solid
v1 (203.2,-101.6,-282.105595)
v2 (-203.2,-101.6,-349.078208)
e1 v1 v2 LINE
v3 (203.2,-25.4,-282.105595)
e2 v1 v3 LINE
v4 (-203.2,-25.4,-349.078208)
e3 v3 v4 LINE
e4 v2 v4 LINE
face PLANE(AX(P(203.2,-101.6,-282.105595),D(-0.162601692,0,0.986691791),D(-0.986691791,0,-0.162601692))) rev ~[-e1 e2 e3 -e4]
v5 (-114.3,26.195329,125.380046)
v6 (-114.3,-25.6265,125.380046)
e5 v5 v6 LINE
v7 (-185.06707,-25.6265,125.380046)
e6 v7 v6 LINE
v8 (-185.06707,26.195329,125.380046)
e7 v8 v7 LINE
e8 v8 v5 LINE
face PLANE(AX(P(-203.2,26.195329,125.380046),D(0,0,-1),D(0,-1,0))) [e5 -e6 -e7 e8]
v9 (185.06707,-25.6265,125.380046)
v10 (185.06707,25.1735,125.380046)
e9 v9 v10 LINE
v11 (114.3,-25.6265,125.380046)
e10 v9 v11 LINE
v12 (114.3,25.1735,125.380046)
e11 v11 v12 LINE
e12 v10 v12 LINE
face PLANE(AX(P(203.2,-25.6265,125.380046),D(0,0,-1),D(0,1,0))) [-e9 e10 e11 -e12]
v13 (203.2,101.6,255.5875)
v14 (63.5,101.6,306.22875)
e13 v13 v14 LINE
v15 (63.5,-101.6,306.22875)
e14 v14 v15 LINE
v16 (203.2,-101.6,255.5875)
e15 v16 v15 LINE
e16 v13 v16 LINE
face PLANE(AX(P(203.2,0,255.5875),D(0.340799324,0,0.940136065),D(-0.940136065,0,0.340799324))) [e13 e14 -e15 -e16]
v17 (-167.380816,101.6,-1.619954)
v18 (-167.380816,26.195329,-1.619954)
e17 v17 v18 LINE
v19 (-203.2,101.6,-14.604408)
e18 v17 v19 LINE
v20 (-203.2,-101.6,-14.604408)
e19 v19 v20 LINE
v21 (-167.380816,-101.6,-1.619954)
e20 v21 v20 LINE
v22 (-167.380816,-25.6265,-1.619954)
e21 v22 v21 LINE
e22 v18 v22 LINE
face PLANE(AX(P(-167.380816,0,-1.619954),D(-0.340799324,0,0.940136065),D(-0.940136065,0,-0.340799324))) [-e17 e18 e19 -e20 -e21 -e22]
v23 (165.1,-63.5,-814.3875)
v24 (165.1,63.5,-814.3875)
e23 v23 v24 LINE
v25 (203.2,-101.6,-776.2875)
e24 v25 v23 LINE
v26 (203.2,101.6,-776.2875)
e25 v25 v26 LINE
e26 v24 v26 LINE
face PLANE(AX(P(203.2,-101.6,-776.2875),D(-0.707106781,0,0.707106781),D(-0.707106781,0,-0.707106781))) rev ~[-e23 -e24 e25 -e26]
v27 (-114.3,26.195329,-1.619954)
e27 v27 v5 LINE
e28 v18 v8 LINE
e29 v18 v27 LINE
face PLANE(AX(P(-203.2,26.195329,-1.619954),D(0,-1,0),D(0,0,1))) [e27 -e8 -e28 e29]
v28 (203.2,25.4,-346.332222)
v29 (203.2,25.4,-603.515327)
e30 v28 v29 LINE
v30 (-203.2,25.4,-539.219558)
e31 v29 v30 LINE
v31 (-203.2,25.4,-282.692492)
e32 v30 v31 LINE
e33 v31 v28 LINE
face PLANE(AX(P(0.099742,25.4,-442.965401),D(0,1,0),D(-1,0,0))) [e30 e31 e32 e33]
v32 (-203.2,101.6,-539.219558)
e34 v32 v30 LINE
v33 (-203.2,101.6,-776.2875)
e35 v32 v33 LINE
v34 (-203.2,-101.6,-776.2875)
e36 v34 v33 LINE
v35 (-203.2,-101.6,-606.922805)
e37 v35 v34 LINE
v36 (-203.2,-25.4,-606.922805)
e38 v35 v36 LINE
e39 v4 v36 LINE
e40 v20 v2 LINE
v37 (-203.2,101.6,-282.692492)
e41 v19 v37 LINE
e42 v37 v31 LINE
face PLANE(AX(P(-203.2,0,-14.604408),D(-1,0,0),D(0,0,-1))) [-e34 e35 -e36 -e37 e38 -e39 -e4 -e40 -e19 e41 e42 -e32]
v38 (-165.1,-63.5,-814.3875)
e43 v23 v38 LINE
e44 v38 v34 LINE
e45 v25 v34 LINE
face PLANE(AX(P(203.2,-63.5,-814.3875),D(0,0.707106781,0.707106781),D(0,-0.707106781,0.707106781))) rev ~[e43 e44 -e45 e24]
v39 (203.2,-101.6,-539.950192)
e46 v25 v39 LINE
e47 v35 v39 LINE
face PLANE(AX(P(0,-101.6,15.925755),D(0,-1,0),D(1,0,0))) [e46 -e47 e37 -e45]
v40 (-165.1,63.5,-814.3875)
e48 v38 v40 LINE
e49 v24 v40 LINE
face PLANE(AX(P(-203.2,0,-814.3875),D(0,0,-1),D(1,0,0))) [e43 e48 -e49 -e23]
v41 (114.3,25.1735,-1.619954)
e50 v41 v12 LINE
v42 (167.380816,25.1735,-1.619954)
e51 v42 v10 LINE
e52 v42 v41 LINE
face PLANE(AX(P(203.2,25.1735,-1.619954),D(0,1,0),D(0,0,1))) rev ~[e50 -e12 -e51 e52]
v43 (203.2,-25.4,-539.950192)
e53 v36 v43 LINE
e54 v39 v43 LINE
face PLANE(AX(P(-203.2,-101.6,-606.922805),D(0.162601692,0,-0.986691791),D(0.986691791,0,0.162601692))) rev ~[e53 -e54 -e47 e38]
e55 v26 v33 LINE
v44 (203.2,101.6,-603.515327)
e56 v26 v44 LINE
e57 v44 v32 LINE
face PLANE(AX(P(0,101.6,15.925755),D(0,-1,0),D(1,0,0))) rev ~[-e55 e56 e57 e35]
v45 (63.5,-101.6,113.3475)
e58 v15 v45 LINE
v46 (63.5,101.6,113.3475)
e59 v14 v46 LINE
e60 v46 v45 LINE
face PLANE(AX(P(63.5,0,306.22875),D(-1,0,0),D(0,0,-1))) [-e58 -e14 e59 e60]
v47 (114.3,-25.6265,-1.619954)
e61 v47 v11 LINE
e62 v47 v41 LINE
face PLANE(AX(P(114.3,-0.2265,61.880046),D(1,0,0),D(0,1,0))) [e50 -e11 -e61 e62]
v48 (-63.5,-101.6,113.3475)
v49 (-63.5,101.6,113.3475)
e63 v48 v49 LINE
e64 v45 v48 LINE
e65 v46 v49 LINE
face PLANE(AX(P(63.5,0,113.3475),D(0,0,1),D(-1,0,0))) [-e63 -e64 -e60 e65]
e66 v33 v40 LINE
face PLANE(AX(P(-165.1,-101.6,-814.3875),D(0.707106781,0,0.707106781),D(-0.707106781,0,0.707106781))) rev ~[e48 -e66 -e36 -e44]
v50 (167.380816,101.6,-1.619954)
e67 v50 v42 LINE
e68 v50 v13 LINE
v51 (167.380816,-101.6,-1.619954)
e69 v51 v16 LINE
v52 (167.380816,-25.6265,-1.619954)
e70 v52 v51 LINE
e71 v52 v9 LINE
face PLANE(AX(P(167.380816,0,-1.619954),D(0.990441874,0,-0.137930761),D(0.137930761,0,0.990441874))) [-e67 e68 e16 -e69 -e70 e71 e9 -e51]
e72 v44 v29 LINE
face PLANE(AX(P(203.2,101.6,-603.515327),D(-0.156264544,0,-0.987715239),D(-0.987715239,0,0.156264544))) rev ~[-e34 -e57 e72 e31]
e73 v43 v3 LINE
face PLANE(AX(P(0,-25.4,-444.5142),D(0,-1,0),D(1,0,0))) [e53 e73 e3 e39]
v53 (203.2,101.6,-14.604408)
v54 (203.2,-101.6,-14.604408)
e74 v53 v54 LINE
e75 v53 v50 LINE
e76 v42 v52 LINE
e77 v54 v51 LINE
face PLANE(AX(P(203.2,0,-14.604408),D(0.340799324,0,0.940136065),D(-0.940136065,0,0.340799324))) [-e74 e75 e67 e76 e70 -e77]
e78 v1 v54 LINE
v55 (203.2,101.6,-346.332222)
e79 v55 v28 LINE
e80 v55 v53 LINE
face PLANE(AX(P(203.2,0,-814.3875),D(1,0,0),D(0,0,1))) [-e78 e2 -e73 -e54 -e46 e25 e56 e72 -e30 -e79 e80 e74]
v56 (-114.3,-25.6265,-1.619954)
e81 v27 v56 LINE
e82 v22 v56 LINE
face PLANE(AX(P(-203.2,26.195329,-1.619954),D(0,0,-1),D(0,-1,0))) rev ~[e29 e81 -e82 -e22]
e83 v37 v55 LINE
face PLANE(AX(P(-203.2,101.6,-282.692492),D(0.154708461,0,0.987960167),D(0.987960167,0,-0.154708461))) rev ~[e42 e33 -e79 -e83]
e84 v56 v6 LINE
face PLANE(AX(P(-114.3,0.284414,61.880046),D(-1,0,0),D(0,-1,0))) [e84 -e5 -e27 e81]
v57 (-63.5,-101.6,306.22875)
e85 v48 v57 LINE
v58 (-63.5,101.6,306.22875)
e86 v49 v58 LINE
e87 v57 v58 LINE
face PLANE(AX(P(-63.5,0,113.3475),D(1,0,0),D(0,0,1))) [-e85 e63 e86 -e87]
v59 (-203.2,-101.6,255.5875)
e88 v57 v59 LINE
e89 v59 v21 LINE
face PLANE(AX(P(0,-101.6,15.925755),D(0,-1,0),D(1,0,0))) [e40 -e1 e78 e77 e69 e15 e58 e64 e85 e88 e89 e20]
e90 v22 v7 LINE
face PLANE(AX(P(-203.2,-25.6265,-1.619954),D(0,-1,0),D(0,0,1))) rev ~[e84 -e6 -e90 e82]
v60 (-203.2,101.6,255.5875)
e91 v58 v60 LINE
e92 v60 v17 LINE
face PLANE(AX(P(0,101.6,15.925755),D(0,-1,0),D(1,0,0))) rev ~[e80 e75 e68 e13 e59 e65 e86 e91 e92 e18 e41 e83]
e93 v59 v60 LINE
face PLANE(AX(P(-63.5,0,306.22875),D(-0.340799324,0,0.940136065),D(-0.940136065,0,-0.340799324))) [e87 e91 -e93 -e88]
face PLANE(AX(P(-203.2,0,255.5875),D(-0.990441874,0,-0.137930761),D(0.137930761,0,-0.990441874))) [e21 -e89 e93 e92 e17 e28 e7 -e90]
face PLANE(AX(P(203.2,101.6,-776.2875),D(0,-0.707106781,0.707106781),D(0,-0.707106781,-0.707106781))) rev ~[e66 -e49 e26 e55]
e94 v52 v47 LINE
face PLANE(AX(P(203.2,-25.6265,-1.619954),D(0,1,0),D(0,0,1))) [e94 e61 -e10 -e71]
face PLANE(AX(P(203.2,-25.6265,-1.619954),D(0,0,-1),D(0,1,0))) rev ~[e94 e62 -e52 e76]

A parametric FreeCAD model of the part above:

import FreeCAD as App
import Part
import Sketcher
from FreeCAD import Vector
Q = App.Units.Quantity

doc = App.newDocument("Part")
body = doc.addObject("PartDesign::Body", "Body")

sketch1 = body.newObject("Sketcher::SketchObject", "Sketch")
sketch1.AttachmentSupport = (doc.getObject("XZ_Plane"), [""])
sketch1.MapMode = "FlatFace"
sketch1.addGeometry(Part.LineSegment(Vector(-203, 256, 0), Vector(-167, -2, 0)), False)
sketch1.addGeometry(Part.LineSegment(Vector(-167, -2, 0), Vector(-203, -15, 0)), False)
sketch1.addGeometry(Part.LineSegment(Vector(-203, -15, 0), Vector(-203, -814, 0)), False)
sketch1.addGeometry(Part.LineSegment(Vector(-203, -814, 0), Vector(203, -814, 0)), False)
sketch1.addGeometry(Part.LineSegment(Vector(203, -814, 0), Vector(203, -15, 0)), False)
sketch1.addGeometry(Part.LineSegment(Vector(203, -15, 0), Vector(167, -2, 0)), False)
sketch1.addGeometry(Part.LineSegment(Vector(167, -2, 0), Vector(203, 256, 0)), False)
sketch1.addGeometry(Part.LineSegment(Vector(203, 256, 0), Vector(64, 306, 0)), False)
sketch1.addGeometry(Part.LineSegment(Vector(64, 306, 0), Vector(64, 113, 0)), False)
sketch1.addGeometry(Part.LineSegment(Vector(64, 113, 0), Vector(-64, 113, 0)), False)
sketch1.addGeometry(Part.LineSegment(Vector(-64, 113, 0), Vector(-64, 306, 0)), False)
sketch1.addGeometry(Part.LineSegment(Vector(-64, 306, 0), Vector(-203, 256, 0)), False)
sketch1.addConstraint(Sketcher.Constraint("Coincident", 0, 2, 1, 1))
sketch1.addConstraint(Sketcher.Constraint("Coincident", 1, 2, 2, 1))
sketch1.addConstraint(Sketcher.Constraint("Coincident", 2, 2, 3, 1))
sketch1.addConstraint(Sketcher.Constraint("Coincident", 3, 2, 4, 1))
sketch1.addConstraint(Sketcher.Constraint("Coincident", 4, 2, 5, 1))
sketch1.addConstraint(Sketcher.Constraint("Coincident", 5, 2, 6, 1))
sketch1.addConstraint(Sketcher.Constraint("Coincident", 6, 2, 7, 1))
sketch1.addConstraint(Sketcher.Constraint("Coincident", 7, 2, 8, 1))
sketch1.addConstraint(Sketcher.Constraint("Coincident", 8, 2, 9, 1))
sketch1.addConstraint(Sketcher.Constraint("Coincident", 9, 2, 10, 1))
sketch1.addConstraint(Sketcher.Constraint("Coincident", 10, 2, 11, 1))
sketch1.addConstraint(Sketcher.Constraint("Coincident", 11, 2, 0, 1))
sketch1.addConstraint(Sketcher.Constraint("Vertical", 2))
sketch1.addConstraint(Sketcher.Constraint("Horizontal", 3))
sketch1.addConstraint(Sketcher.Constraint("Vertical", 4))
sketch1.addConstraint(Sketcher.Constraint("Vertical", 8))
sketch1.addConstraint(Sketcher.Constraint("Horizontal", 9))
sketch1.addConstraint(Sketcher.Constraint("Vertical", 10))
sketch1.addConstraint(Sketcher.Constraint("Symmetric", 1, 2, 4, 2, -2))
sketch1.addConstraint(Sketcher.Constraint("Symmetric", 0, 2, 5, 2, -2))
sketch1.addConstraint(Sketcher.Constraint("Symmetric", 7, 2, 10, 2, -2))
sketch1.addConstraint(Sketcher.Constraint("Symmetric", 6, 2, 11, 2, -2))
sketch1.addConstraint(Sketcher.Constraint("Parallel", 5, 7))
sketch1.addConstraint(Sketcher.Constraint("Vertical", 4, 2, 6, 2))
sketch1.addConstraint(Sketcher.Constraint("DistanceX", 3, 1, 3, 2, Q("16 in")))
sketch1.addConstraint(Sketcher.Constraint("DistanceX", 9, 2, 9, 1, Q("5 in")))
sketch1.addConstraint(Sketcher.Constraint("Distance", 1, Q("1.5 in")))
sketch1.addConstraint(Sketcher.Constraint("DistanceY", 8, 2, 6, 2, Q("5.6 in")))
sketch1.addConstraint(Sketcher.Constraint("DistanceY", 8, 2, 8, 1, Q("7.59375 in")))
sketch1.addConstraint(Sketcher.Constraint("Distance", 0, Q("10.224 in")))
sketch1.addConstraint(Sketcher.Constraint("DistanceY", 2, 2, -1, 1, Q("32.0625 in")))
sketch1.addConstraint(Sketcher.Constraint("DistanceY", -1, 1, 6, 2, Q("10.0625 in")))
pad1 = body.newObject("PartDesign::Pad", "Pad")
pad1.Profile = sketch1
pad1.Length = Q("8 in")
pad1.Midplane = True

sketch2 = body.newObject("Sketcher::SketchObject", "Sketch001")
sketch2.AttachmentSupport = (doc.getObject("YZ_Plane"), [""])
sketch2.MapMode = "FlatFace"
sketch2.AttachmentOffset = App.Placement(Vector(0, 0, -8 * 25.4), App.Rotation())
sketch2.addGeometry(Part.LineSegment(Vector(26, 125, 0), Vector(26, -2, 0)), False)
sketch2.addGeometry(Part.LineSegment(Vector(26, -2, 0), Vector(-26, -2, 0)), False)
sketch2.addGeometry(Part.LineSegment(Vector(-26, -2, 0), Vector(-26, 125, 0)), False)
sketch2.addGeometry(Part.LineSegment(Vector(-26, 125, 0), Vector(26, 125, 0)), False)
sketch2.addConstraint(Sketcher.Constraint("Coincident", 0, 2, 1, 1))
sketch2.addConstraint(Sketcher.Constraint("Coincident", 1, 2, 2, 1))
sketch2.addConstraint(Sketcher.Constraint("Coincident", 2, 2, 3, 1))
sketch2.addConstraint(Sketcher.Constraint("Coincident", 3, 2, 0, 1))
sketch2.addConstraint(Sketcher.Constraint("Vertical", 0))
sketch2.addConstraint(Sketcher.Constraint("Horizontal", 1))
sketch2.addConstraint(Sketcher.Constraint("Vertical", 2))
sketch2.addConstraint(Sketcher.Constraint("Horizontal", 3))
sketch2.addConstraint(Sketcher.Constraint("DistanceY", 0, 2, 0, 1, Q("5 in")))
sketch2.addConstraint(Sketcher.Constraint("DistanceX", 1, 2, 1, 1, Q("51.82183 mm")))
sketch2.addConstraint(Sketcher.Constraint("DistanceX", 1, 2, -1, 1, Q("25.6265 mm")))
sketch2.addConstraint(Sketcher.Constraint("DistanceY", 0, 2, -1, 1, Q("1.619954 mm")))
pocket1 = body.newObject("PartDesign::Pocket", "Pocket")
pocket1.Profile = sketch2
pocket1.Length = Q("3.5 in")
pocket1.Reversed = True

sketch3 = body.newObject("Sketcher::SketchObject", "Sketch002")
sketch3.AttachmentSupport = (doc.getObject("YZ_Plane"), [""])
sketch3.MapMode = "FlatFace"
sketch3.AttachmentOffset = App.Placement(Vector(0, 0, 8 * 25.4), App.Rotation())
sketch3.addGeometry(Part.LineSegment(Vector(-26, 125, 0), Vector(-26, -2, 0)), False)
sketch3.addGeometry(Part.LineSegment(Vector(-26, -2, 0), Vector(25, -2, 0)), False)
sketch3.addGeometry(Part.LineSegment(Vector(25, -2, 0), Vector(25, 125, 0)), False)
sketch3.addGeometry(Part.LineSegment(Vector(25, 125, 0), Vector(-26, 125, 0)), False)
sketch3.addConstraint(Sketcher.Constraint("Coincident", 0, 2, 1, 1))
sketch3.addConstraint(Sketcher.Constraint("Coincident", 1, 2, 2, 1))
sketch3.addConstraint(Sketcher.Constraint("Coincident", 2, 2, 3, 1))
sketch3.addConstraint(Sketcher.Constraint("Coincident", 3, 2, 0, 1))
sketch3.addConstraint(Sketcher.Constraint("Vertical", 0))
sketch3.addConstraint(Sketcher.Constraint("Horizontal", 1))
sketch3.addConstraint(Sketcher.Constraint("Vertical", 2))
sketch3.addConstraint(Sketcher.Constraint("Horizontal", 3))
sketch3.addConstraint(Sketcher.Constraint("DistanceX", 1, 1, 1, 2, Q("2 in")))
sketch3.addConstraint(Sketcher.Constraint("DistanceY", 0, 2, 0, 1, Q("5 in")))
sketch3.addConstraint(Sketcher.Constraint("DistanceX", 0, 2, -1, 1, Q("25.6265 mm")))
sketch3.addConstraint(Sketcher.Constraint("DistanceY", 0, 2, -1, 1, Q("1.619954 mm")))
pocket2 = body.newObject("PartDesign::Pocket", "Pocket001")
pocket2.Profile = sketch3
pocket2.Length = Q("3.5 in")

sketch4 = body.newObject("Sketcher::SketchObject", "Sketch003")
sketch4.AttachmentSupport = (doc.getObject("XZ_Plane"), [""])
sketch4.MapMode = "FlatFace"
sketch4.AttachmentOffset = App.Placement(Vector(0, 0, 4 * 25.4), App.Rotation())
sketch4.addGeometry(Part.LineSegment(Vector(203, -282, 0), Vector(-203, -349, 0)), False)
sketch4.addGeometry(Part.LineSegment(Vector(-203, -349, 0), Vector(-203, -607, 0)), False)
sketch4.addGeometry(Part.LineSegment(Vector(-203, -607, 0), Vector(203, -540, 0)), False)
sketch4.addGeometry(Part.LineSegment(Vector(203, -540, 0), Vector(203, -282, 0)), False)
sketch4.addConstraint(Sketcher.Constraint("Coincident", 0, 2, 1, 1))
sketch4.addConstraint(Sketcher.Constraint("Coincident", 1, 2, 2, 1))
sketch4.addConstraint(Sketcher.Constraint("Coincident", 2, 2, 3, 1))
sketch4.addConstraint(Sketcher.Constraint("Coincident", 3, 2, 0, 1))
sketch4.addConstraint(Sketcher.Constraint("Vertical", 1))
sketch4.addConstraint(Sketcher.Constraint("Vertical", 3))
sketch4.addConstraint(Sketcher.Constraint("Parallel", 0, 2))
sketch4.addConstraint(Sketcher.Constraint("DistanceX", 0, 2, -1, 1, Q("8 in")))
sketch4.addConstraint(Sketcher.Constraint("DistanceX", -1, 1, 2, 2, Q("8 in")))
sketch4.addConstraint(Sketcher.Constraint("DistanceY", 1, 2, 1, 1, Q("257.844597 mm")))
sketch4.addConstraint(Sketcher.Constraint("DistanceY", 0, 2, -1, 1, Q("349.078208 mm")))
sketch4.addConstraint(Sketcher.Constraint("DistanceY", 2, 2, -1, 1, Q("539.950192 mm")))
pocket3 = body.newObject("PartDesign::Pocket", "Pocket002")
pocket3.Profile = sketch4
pocket3.Length = Q("3 in")

sketch5 = body.newObject("Sketcher::SketchObject", "Sketch004")
sketch5.AttachmentSupport = (doc.getObject("XZ_Plane"), [""])
sketch5.MapMode = "FlatFace"
sketch5.AttachmentOffset = App.Placement(Vector(0, 0, -4 * 25.4), App.Rotation())
sketch5.addGeometry(Part.LineSegment(Vector(203, -346, 0), Vector(203, -604, 0)), False)
sketch5.addGeometry(Part.LineSegment(Vector(203, -604, 0), Vector(-203, -539, 0)), False)
sketch5.addGeometry(Part.LineSegment(Vector(-203, -539, 0), Vector(-203, -283, 0)), False)
sketch5.addGeometry(Part.LineSegment(Vector(-203, -283, 0), Vector(203, -346, 0)), False)
sketch5.addConstraint(Sketcher.Constraint("Coincident", 0, 2, 1, 1))
sketch5.addConstraint(Sketcher.Constraint("Coincident", 1, 2, 2, 1))
sketch5.addConstraint(Sketcher.Constraint("Coincident", 2, 2, 3, 1))
sketch5.addConstraint(Sketcher.Constraint("Coincident", 3, 2, 0, 1))
sketch5.addConstraint(Sketcher.Constraint("Vertical", 0))
sketch5.addConstraint(Sketcher.Constraint("Vertical", 2))
sketch5.addConstraint(Sketcher.Constraint("DistanceX", -1, 1, 0, 2, Q("8 in")))
sketch5.addConstraint(Sketcher.Constraint("DistanceX", 1, 2, -1, 1, Q("8 in")))
sketch5.addConstraint(Sketcher.Constraint("Distance", 1, Q("411.454622 mm")))
sketch5.addConstraint(Sketcher.Constraint("DistanceY", 0, 2, 0, 1, Q("257.183105 mm")))
sketch5.addConstraint(Sketcher.Constraint("DistanceY", 2, 1, 2, 2, Q("256.527066 mm")))
sketch5.addConstraint(Sketcher.Constraint("DistanceY", 1, 2, -1, 1, Q("539.219558 mm")))
pocket4 = body.newObject("PartDesign::Pocket", "Pocket003")
pocket4.Profile = sketch5
pocket4.Length = Q("3 in")
pocket4.Reversed = True

sketch6 = body.newObject("Sketcher::SketchObject", "Sketch005")
sketch6.AttachmentSupport = (doc.getObject("XZ_Plane"), [""])
sketch6.MapMode = "FlatFace"
sketch6.AttachmentOffset = App.Placement(Vector(0, 0, 4 * 25.4), App.Rotation())
sketch6.addGeometry(Part.LineSegment(Vector(203, -776, 0), Vector(165, -814, 0)), False)
sketch6.addGeometry(Part.LineSegment(Vector(165, -814, 0), Vector(203, -814, 0)), False)
sketch6.addGeometry(Part.LineSegment(Vector(203, -814, 0), Vector(203, -776, 0)), False)
sketch6.addGeometry(Part.LineSegment(Vector(-203, -814, 0), Vector(-165, -814, 0)), False)
sketch6.addGeometry(Part.LineSegment(Vector(-165, -814, 0), Vector(-203, -776, 0)), False)
sketch6.addGeometry(Part.LineSegment(Vector(-203, -776, 0), Vector(-203, -814, 0)), False)
sketch6.addConstraint(Sketcher.Constraint("Coincident", 0, 2, 1, 1))
sketch6.addConstraint(Sketcher.Constraint("Coincident", 1, 2, 2, 1))
sketch6.addConstraint(Sketcher.Constraint("Coincident", 2, 2, 0, 1))
sketch6.addConstraint(Sketcher.Constraint("Coincident", 3, 2, 4, 1))
sketch6.addConstraint(Sketcher.Constraint("Coincident", 4, 2, 5, 1))
sketch6.addConstraint(Sketcher.Constraint("Coincident", 5, 2, 3, 1))
sketch6.addConstraint(Sketcher.Constraint("Horizontal", 1))
sketch6.addConstraint(Sketcher.Constraint("Vertical", 2))
sketch6.addConstraint(Sketcher.Constraint("Horizontal", 3))
sketch6.addConstraint(Sketcher.Constraint("Vertical", 5))
sketch6.addConstraint(Sketcher.Constraint("Symmetric", 0, 2, 3, 2, -2))
sketch6.addConstraint(Sketcher.Constraint("Symmetric", 2, 2, 4, 2, -2))
sketch6.addConstraint(Sketcher.Constraint("Perpendicular", 0, 4))
sketch6.addConstraint(Sketcher.Constraint("DistanceX", 1, 1, 1, 2, Q("1.5 in")))
sketch6.addConstraint(Sketcher.Constraint("DistanceX", -1, 1, 1, 2, Q("8 in")))
sketch6.addConstraint(Sketcher.Constraint("DistanceY", 0, 2, -1, 1, Q("32.0625 in")))
pocket5 = body.newObject("PartDesign::Pocket", "Pocket004")
pocket5.Profile = sketch6
pocket5.Length = Q("8 in")

sketch7 = body.newObject("Sketcher::SketchObject", "Sketch006")
sketch7.AttachmentSupport = (doc.getObject("YZ_Plane"), [""])
sketch7.MapMode = "FlatFace"
sketch7.AttachmentOffset = App.Placement(Vector(0, 0, 8 * 25.4), App.Rotation())
sketch7.addGeometry(Part.LineSegment(Vector(-64, -814, 0), Vector(-102, -776, 0)), False)
sketch7.addGeometry(Part.LineSegment(Vector(-102, -776, 0), Vector(-102, -814, 0)), False)
sketch7.addGeometry(Part.LineSegment(Vector(-102, -814, 0), Vector(-64, -814, 0)), False)
sketch7.addGeometry(Part.LineSegment(Vector(102, -814, 0), Vector(102, -776, 0)), False)
sketch7.addGeometry(Part.LineSegment(Vector(102, -776, 0), Vector(64, -814, 0)), False)
sketch7.addGeometry(Part.LineSegment(Vector(64, -814, 0), Vector(102, -814, 0)), False)
sketch7.addConstraint(Sketcher.Constraint("Coincident", 0, 2, 1, 1))
sketch7.addConstraint(Sketcher.Constraint("Coincident", 1, 2, 2, 1))
sketch7.addConstraint(Sketcher.Constraint("Coincident", 2, 2, 0, 1))
sketch7.addConstraint(Sketcher.Constraint("Coincident", 3, 2, 4, 1))
sketch7.addConstraint(Sketcher.Constraint("Coincident", 4, 2, 5, 1))
sketch7.addConstraint(Sketcher.Constraint("Coincident", 5, 2, 3, 1))
sketch7.addConstraint(Sketcher.Constraint("Horizontal", 2))
sketch7.addConstraint(Sketcher.Constraint("Vertical", 3))
sketch7.addConstraint(Sketcher.Constraint("Horizontal", 5))
sketch7.addConstraint(Sketcher.Constraint("Symmetric", 0, 2, 3, 2, -2))
sketch7.addConstraint(Sketcher.Constraint("Symmetric", 2, 2, 4, 2, -2))
sketch7.addConstraint(Sketcher.Constraint("Perpendicular", 0, 4))
sketch7.addConstraint(Sketcher.Constraint("DistanceX", 5, 1, 5, 2, Q("1.5 in")))
sketch7.addConstraint(Sketcher.Constraint("DistanceX", 0, 2, -1, 1, Q("4 in")))
sketch7.addConstraint(Sketcher.Constraint("DistanceY", 0, 2, -1, 1, Q("30.5625 in")))
sketch7.addConstraint(Sketcher.Constraint("DistanceX", 2, 1, 2, 2, Q("38.102972 mm")))
pocket6 = body.newObject("PartDesign::Pocket", "Pocket005")
pocket6.Profile = sketch7
pocket6.Length = Q("16 in")

doc.recompute()
